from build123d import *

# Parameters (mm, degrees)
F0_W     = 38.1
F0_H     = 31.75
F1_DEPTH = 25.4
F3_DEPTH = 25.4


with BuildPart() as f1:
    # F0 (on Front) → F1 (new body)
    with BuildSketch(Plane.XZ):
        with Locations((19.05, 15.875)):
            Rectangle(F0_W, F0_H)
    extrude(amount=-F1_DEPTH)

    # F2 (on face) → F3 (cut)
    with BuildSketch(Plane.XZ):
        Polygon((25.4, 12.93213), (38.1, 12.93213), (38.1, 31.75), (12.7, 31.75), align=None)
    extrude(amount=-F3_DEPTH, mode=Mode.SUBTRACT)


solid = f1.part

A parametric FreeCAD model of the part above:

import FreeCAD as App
import Part
import Sketcher

V = App.Vector
Q = App.Units.Quantity


def add_polygon(sketch, points):
    """Adds a closed chain of lines whose ends are joined by coincident constraints."""
    first, n = sketch.GeometryCount, len(points)
    for a, b in zip(points, points[1:] + points[:1]):
        sketch.addGeometry(Part.LineSegment(App.Vector(*a, 0), App.Vector(*b, 0)), False)
    for i in range(n):
        sketch.addConstraint(Sketcher.Constraint("Coincident", first + i, 2, first + (i + 1) % n, 1))

doc = App.newDocument("Part")
body = doc.addObject("PartDesign::Body", "Body")

sketch1 = doc.addObject("Sketcher::SketchObject", "Sketch")
body.addObject(sketch1)
sketch1.AttachmentSupport = (doc.XZ_Plane, [""])
sketch1.MapMode = "FlatFace"
add_polygon(sketch1, [(0, 32), (0, 0), (38, 0), (38, 32)])
sketch1.addConstraint(Sketcher.Constraint("Vertical", 0))
sketch1.addConstraint(Sketcher.Constraint("Horizontal", 1))
sketch1.addConstraint(Sketcher.Constraint("Vertical", 2))
sketch1.addConstraint(Sketcher.Constraint("Horizontal", 3))
sketch1.addConstraint(Sketcher.Constraint("Coincident", 0, 2, -1, 1))
sketch1.addConstraint(Sketcher.Constraint("DistanceX", 1, 1, 1, 2, Q("1.5 in")))
sketch1.addConstraint(Sketcher.Constraint("DistanceY", 0, 2, 0, 1, Q("1.25 in")))
pad1 = doc.addObject("PartDesign::Pad", "Pad")
body.addObject(pad1)
pad1.Profile = sketch1
pad1.Length = Q("1 in")
pad1.Reversed = True

sketch2 = doc.addObject("Sketcher::SketchObject", "Sketch001")
body.addObject(sketch2)
sketch2.AttachmentSupport = (doc.XZ_Plane, [""])
sketch2.MapMode = "FlatFace"
add_polygon(sketch2, [(25, 13), (38, 13), (38, 32), (13, 32)])
sketch2.addConstraint(Sketcher.Constraint("Horizontal", 0))
sketch2.addConstraint(Sketcher.Constraint("Vertical", 1))
sketch2.addConstraint(Sketcher.Constraint("Horizontal", 2))
sketch2.addConstraint(Sketcher.Constraint("DistanceX", 2, 2, 2, 1, Q("1 in")))
sketch2.addConstraint(Sketcher.Constraint("DistanceX", 0, 1, 0, 2, Q("0.5 in")))
sketch2.addConstraint(Sketcher.Constraint("DistanceX", -1, 1, 3, 2, Q("1 in")))
sketch2.addConstraint(Sketcher.Constraint("DistanceY", -1, 1, 1, 2, Q("1.25 in")))
sketch2.addConstraint(Sketcher.Constraint("DistanceY", 1, 1, 1, 2, Q("18.81787 mm")))
pocket1 = doc.addObject("PartDesign::Pocket", "Pocket")
body.addObject(pocket1)
pocket1.Profile = sketch2
pocket1.Length = Q("1 in")

doc.recompute()
